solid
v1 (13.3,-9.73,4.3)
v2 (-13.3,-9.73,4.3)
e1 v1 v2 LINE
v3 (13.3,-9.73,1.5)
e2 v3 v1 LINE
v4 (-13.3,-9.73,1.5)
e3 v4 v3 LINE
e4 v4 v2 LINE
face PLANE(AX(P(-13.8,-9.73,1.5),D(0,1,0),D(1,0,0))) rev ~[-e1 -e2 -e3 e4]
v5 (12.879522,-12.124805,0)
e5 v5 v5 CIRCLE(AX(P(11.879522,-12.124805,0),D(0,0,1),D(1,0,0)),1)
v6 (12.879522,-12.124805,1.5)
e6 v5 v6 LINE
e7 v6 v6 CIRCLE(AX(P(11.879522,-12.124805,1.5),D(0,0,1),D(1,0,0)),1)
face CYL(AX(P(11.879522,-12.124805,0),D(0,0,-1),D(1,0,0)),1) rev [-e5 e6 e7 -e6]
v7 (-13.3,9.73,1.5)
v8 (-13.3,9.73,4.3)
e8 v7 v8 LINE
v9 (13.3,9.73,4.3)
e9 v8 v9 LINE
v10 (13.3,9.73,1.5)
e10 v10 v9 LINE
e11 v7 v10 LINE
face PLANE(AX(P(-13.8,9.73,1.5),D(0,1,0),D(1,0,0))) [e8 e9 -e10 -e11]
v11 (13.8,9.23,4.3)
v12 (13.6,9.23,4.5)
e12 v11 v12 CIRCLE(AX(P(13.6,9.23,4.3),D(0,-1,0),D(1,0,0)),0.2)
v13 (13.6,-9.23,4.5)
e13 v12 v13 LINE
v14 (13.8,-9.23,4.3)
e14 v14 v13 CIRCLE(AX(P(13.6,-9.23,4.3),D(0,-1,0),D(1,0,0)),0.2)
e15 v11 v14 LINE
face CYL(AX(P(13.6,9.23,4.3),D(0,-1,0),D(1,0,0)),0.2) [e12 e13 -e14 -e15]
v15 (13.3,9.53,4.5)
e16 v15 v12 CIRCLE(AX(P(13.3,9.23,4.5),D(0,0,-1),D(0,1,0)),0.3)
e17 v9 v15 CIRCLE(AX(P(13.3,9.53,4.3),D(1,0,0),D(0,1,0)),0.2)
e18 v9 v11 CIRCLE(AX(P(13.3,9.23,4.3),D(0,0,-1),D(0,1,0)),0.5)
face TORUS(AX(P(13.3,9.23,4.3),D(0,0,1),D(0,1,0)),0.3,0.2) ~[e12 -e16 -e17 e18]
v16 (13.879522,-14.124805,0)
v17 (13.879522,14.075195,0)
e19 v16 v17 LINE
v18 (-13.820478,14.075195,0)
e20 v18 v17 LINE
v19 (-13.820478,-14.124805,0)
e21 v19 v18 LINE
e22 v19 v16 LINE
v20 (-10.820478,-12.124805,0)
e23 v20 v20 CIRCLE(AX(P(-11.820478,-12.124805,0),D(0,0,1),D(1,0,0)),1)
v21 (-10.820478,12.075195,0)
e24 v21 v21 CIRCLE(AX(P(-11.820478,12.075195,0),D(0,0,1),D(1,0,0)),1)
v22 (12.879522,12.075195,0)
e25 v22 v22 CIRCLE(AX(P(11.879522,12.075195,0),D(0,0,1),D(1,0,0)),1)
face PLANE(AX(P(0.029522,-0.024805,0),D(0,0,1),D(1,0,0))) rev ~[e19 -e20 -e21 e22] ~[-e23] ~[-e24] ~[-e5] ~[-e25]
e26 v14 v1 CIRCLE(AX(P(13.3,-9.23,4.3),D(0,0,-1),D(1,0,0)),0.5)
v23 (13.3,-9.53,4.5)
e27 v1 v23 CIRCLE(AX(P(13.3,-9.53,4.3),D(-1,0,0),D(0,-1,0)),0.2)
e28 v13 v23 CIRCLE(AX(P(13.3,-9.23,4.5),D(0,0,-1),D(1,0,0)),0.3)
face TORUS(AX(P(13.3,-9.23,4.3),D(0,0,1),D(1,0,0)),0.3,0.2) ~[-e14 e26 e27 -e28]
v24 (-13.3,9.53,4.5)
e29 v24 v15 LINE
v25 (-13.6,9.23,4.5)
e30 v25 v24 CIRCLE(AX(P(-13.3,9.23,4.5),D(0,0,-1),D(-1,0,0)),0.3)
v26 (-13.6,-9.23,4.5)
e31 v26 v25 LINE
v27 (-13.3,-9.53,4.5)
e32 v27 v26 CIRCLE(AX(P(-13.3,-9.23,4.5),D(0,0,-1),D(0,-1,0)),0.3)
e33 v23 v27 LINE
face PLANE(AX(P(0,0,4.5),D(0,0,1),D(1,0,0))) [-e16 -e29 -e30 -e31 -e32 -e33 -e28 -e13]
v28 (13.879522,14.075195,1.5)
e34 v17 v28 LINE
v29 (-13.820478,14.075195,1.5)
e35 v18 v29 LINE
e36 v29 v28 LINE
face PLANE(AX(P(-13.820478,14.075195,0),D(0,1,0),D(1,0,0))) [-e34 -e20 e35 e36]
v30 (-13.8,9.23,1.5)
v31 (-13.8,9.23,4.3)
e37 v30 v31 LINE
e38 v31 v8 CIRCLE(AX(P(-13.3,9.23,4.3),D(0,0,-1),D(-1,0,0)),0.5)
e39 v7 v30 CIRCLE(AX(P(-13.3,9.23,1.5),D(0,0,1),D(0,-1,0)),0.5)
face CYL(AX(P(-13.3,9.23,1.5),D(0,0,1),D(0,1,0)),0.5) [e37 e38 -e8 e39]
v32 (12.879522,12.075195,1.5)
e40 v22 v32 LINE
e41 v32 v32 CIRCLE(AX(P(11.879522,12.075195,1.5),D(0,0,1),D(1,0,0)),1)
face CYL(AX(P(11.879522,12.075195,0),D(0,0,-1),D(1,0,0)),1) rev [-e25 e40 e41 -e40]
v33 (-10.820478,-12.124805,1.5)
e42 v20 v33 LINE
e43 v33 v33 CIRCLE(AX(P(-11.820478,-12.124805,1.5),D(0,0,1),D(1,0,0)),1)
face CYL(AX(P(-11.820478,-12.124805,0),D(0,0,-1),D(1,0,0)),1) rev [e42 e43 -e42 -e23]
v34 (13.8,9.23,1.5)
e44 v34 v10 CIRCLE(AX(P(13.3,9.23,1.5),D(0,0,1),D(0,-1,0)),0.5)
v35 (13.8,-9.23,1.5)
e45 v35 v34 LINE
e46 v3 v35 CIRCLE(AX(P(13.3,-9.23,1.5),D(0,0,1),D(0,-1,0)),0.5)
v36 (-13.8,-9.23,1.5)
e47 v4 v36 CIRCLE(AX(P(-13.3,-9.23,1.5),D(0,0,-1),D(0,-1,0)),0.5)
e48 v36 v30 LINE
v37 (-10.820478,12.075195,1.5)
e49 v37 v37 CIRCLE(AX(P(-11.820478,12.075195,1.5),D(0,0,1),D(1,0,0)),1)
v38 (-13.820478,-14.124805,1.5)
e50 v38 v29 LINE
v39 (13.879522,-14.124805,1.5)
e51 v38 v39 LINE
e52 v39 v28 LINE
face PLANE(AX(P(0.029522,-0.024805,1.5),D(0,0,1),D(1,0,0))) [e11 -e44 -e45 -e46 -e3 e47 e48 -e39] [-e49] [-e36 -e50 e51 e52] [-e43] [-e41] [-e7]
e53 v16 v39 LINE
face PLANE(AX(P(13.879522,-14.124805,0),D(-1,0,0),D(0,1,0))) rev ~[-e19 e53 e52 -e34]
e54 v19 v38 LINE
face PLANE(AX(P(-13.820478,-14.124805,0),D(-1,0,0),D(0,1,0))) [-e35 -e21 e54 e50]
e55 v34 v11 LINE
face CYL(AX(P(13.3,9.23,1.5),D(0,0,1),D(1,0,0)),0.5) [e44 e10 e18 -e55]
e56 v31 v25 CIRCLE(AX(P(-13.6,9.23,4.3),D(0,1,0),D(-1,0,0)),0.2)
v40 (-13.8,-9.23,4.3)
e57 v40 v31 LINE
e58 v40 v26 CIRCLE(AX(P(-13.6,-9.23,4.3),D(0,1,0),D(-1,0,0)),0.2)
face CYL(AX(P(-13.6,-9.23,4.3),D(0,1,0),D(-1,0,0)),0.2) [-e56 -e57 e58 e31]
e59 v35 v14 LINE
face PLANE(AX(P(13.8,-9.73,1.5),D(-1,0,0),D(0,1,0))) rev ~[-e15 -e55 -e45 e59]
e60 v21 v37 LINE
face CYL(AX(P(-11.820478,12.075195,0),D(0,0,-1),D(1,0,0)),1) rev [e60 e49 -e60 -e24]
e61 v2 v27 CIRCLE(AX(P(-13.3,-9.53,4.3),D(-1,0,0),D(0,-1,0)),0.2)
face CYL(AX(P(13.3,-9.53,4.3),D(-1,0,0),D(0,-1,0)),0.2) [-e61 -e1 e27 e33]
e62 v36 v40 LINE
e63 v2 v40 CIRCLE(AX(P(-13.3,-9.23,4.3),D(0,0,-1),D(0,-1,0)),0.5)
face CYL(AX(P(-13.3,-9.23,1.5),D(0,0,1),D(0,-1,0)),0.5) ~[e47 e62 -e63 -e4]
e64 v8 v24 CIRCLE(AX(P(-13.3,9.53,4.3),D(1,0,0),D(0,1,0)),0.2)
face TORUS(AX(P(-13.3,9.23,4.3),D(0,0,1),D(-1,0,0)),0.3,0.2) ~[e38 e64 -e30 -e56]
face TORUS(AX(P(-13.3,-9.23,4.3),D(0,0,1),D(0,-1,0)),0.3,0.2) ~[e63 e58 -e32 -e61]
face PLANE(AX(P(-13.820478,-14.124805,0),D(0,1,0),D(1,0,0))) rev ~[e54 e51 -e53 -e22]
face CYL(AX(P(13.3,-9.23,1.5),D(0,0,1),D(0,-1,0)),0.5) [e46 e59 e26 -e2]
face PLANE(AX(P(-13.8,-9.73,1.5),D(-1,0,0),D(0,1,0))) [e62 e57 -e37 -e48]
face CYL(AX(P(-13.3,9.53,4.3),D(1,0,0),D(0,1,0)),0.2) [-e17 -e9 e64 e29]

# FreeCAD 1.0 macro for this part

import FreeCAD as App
import Part
import Sketcher


def edges_at(feature, points):
    """Names of the edges that pass closest to the given points."""
    edges = feature.Shape.Edges
    near = lambda p: min(range(len(edges)), key=lambda i: edges[i].distToShape(Part.Vertex(*p))[0])
    return sorted({f"Edge{near(p) + 1}" for p in points})

doc = App.newDocument("Part")
params = doc.addObject("Spreadsheet::Sheet", "Params")
for row, (alias, value) in enumerate([
    ("sketch1_diameter", "2 mm"),
    ("sketch1_width", "27.7 mm"),
    ("sketch1_height", "28.2 mm"),
    ("pad1_length", "1.5 mm"),
    ("sketch2_width", "27.6 mm"),
    ("sketch2_height", "19.46 mm"),
    ("pad2_length", "3 mm"),
    ("fillet_radius", "0.5 mm"),
    ("fillet2_radius", "0.2 mm"),
], start=1):
    params.set(f"A{row}", alias)
    params.set(f"B{row}", "=" + value)
    params.setAlias(f"B{row}", alias)

body = doc.addObject("PartDesign::Body", "Body")

# Sketch on XY plane
sketch1 = body.newObject("Sketcher::SketchObject", "Sketch")
sketch1.AttachmentSupport = (doc.getObject("XY_Plane"), [""])
sketch1.MapMode = "FlatFace"
sketch1.addGeometry([
    Part.LineSegment(App.Vector(-13.8, 14.1, 0), App.Vector(-13.8, -14.1, 0)),  # 0
    Part.LineSegment(App.Vector(-13.8, -14.1, 0), App.Vector(13.9, -14.1, 0)),  # 1
    Part.LineSegment(App.Vector(13.9, -14.1, 0), App.Vector(13.9, 14.1, 0)),  # 2
    Part.LineSegment(App.Vector(13.9, 14.1, 0), App.Vector(-13.8, 14.1, 0)),  # 3
    Part.Circle(App.Vector(-11.8, -12.1, 0), App.Vector(0, 0, 1), 1),  # 4
    Part.Circle(App.Vector(11.9, -12.1, 0), App.Vector(0, 0, 1), 1),  # 5
    Part.Circle(App.Vector(-11.8, 12.1, 0), App.Vector(0, 0, 1), 1),  # 6
    Part.Circle(App.Vector(11.9, 12.1, 0), App.Vector(0, 0, 1), 1),  # 7
], False)
sketch1.addConstraint([
    Sketcher.Constraint("Coincident", 0, 2, 1, 1),
    Sketcher.Constraint("Coincident", 1, 2, 2, 1),
    Sketcher.Constraint("Coincident", 2, 2, 3, 1),
    Sketcher.Constraint("Coincident", 3, 2, 0, 1),
    Sketcher.Constraint("Vertical", 0),
    Sketcher.Constraint("Horizontal", 1),
    Sketcher.Constraint("Vertical", 2),
    Sketcher.Constraint("Horizontal", 3),
    Sketcher.Constraint("Equal", 4, 5),
    Sketcher.Constraint("Equal", 5, 6),
    Sketcher.Constraint("Equal", 6, 7),
    Sketcher.Constraint("Horizontal", 4, 3, 5, 3),
    Sketcher.Constraint("Horizontal", 6, 3, 7, 3),
    Sketcher.Constraint("Vertical", 4, 3, 6, 3),
    Sketcher.Constraint("Vertical", 5, 3, 7, 3),
    Sketcher.Constraint("Diameter", 4, 2.0),
    Sketcher.Constraint("DistanceX", 1, 1, 1, 2, 27.7),
    Sketcher.Constraint("DistanceY", 0, 2, 0, 1, 28.2),
    Sketcher.Constraint("DistanceX", 0, 2, 4, 3, 2.0),
    Sketcher.Constraint("DistanceY", 0, 2, 4, 3, 2.0),
    Sketcher.Constraint("DistanceX", 5, 3, 1, 2, 2.0),
    Sketcher.Constraint("DistanceY", 7, 3, 2, 2, 2.0),
    Sketcher.Constraint("DistanceX", 4, 3, -1, 1, 11.820478),
    Sketcher.Constraint("DistanceY", 4, 3, -1, 1, 12.124805),
])
sketch1.setExpression("Constraints[15]", "Params.sketch1_diameter")
sketch1.setExpression("Constraints[16]", "Params.sketch1_width")
sketch1.setExpression("Constraints[17]", "Params.sketch1_height")
pad1 = body.newObject("PartDesign::Pad", "Pad")
pad1.Profile = sketch1
pad1.setExpression("Length", "Params.pad1_length")

# Sketch on XY plane
sketch2 = body.newObject("Sketcher::SketchObject", "Sketch001")
sketch2.AttachmentSupport = (doc.getObject("XY_Plane"), [""])
sketch2.MapMode = "FlatFace"
sketch2.AttachmentOffset = App.Placement(App.Vector(0, 0, 1.5), App.Rotation())
sketch2.addGeometry([
    Part.LineSegment(App.Vector(-14, 10, 0), App.Vector(-14, -10, 0)),
    Part.LineSegment(App.Vector(-14, -10, 0), App.Vector(14, -10, 0)),
    Part.LineSegment(App.Vector(14, -10, 0), App.Vector(14, 10, 0)),
    Part.LineSegment(App.Vector(14, 10, 0), App.Vector(-14, 10, 0)),
], False)
sketch2.addConstraint([
    Sketcher.Constraint("Coincident", 0, 2, 1, 1),
    Sketcher.Constraint("Coincident", 1, 2, 2, 1),
    Sketcher.Constraint("Coincident", 2, 2, 3, 1),
    Sketcher.Constraint("Coincident", 3, 2, 0, 1),
    Sketcher.Constraint("Vertical", 0),
    Sketcher.Constraint("Horizontal", 1),
    Sketcher.Constraint("Vertical", 2),
    Sketcher.Constraint("Horizontal", 3),
    Sketcher.Constraint("Symmetric", 0, 2, 2, 2, -1, 1),
    Sketcher.Constraint("DistanceX", 1, 1, 1, 2, 27.6),
    Sketcher.Constraint("DistanceY", 0, 2, 0, 1, 19.46),
])
sketch2.setExpression("Constraints[9]", "Params.sketch2_width")
sketch2.setExpression("Constraints[10]", "Params.sketch2_height")
pad2 = body.newObject("PartDesign::Pad", "Pad001")
pad2.Profile = sketch2
pad2.setExpression("Length", "Params.pad2_length")
doc.recompute()

fillet = body.newObject("PartDesign::Fillet", "Fillet")
fillet.Base = (pad2, edges_at(pad2, [
    (13.8, -9.73, 3),
    (13.8, 9.73, 3),
    (-13.8, 9.73, 3),
    (-13.8, -9.73, 3),
]))
fillet.setExpression("Radius", "Params.fillet_radius")
doc.recompute()

fillet2 = body.newObject("PartDesign::Fillet", "Fillet001")
fillet2.Base = (fillet, edges_at(fillet, [
    (0, 9.73, 4.5),
    (13.654, 9.584, 4.5),
    (-13.654, 9.584, 4.5),
    (13.8, 0, 4.5),
    (-13.8, 0, 4.5),
    (13.654, -9.584, 4.5),
    (-13.654, -9.584, 4.5),
    (0, -9.73, 4.5),
]))
fillet2.setExpression("Radius", "Params.fillet2_radius")

doc.recompute()
